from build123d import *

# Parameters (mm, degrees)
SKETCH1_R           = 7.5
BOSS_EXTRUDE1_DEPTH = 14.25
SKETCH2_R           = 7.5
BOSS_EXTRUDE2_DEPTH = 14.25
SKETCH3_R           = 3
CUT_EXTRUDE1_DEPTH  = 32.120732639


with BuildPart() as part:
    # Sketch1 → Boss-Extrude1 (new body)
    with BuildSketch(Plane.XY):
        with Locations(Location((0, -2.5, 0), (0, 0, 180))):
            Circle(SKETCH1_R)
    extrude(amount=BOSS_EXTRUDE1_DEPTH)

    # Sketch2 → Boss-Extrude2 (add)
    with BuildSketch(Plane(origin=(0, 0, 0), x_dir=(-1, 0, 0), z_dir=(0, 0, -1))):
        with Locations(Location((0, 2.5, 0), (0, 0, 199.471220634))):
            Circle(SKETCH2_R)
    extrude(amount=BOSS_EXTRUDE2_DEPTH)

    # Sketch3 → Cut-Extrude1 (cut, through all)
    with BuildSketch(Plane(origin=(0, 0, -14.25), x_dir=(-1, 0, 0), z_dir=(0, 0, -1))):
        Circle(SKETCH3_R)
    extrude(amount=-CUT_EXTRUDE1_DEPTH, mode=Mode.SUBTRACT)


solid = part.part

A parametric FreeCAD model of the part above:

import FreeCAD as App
import Part
import Sketcher
from FreeCAD import Vector
Q = App.Units.Quantity

doc = App.newDocument("Part")
params = doc.addObject("Spreadsheet::Sheet", "Params")
for row, (alias, value) in enumerate([
    ("sketch1_diameter", "15 mm"),
    ("pad1_length", "14.25 mm"),
    ("sketch2_diameter", "15 mm"),
    ("pad2_length", "14.25 mm"),
    ("sketch3_diameter", "6 mm"),
], start=1):
    params.set(f"A{row}", alias)
    params.set(f"B{row}", "=" + value)
    params.setAlias(f"B{row}", alias)

body = doc.addObject("PartDesign::Body", "Body")

# Sketch on XY plane
sketch1 = body.newObject("Sketcher::SketchObject", "Sketch")
sketch1.AttachmentSupport = (doc.getObject("XY_Plane"), [""])
sketch1.MapMode = "FlatFace"
sketch1.addGeometry(Part.Circle(Vector(0, -2, 0), Vector(0, 0, 1), 8), False)
sketch1.addConstraint([
    Sketcher.Constraint("PointOnObject", 0, 3, -2),
    Sketcher.Constraint("Diameter", 0, Q("15 mm")),
    Sketcher.Constraint("DistanceY", 0, 3, -1, 1, Q("2.5 mm")),
])
sketch1.setExpression("Constraints[1]", "Params.sketch1_diameter")
pad1 = body.newObject("PartDesign::Pad", "Pad")
pad1.Profile = sketch1
pad1.setExpression("Length", "Params.pad1_length")

# Sketch on XY plane
sketch2 = body.newObject("Sketcher::SketchObject", "Sketch001")
sketch2.AttachmentSupport = (doc.getObject("XY_Plane"), [""])
sketch2.MapMode = "FlatFace"
sketch2.addGeometry(Part.Circle(Vector(0, 2, 0), Vector(0, 0, 1), 8), False)
sketch2.addConstraint([
    Sketcher.Constraint("PointOnObject", 0, 3, -2),
    Sketcher.Constraint("Diameter", 0, Q("15 mm")),
    Sketcher.Constraint("DistanceY", -1, 1, 0, 3, Q("2.5 mm")),
])
sketch2.setExpression("Constraints[1]", "Params.sketch2_diameter")
pad2 = body.newObject("PartDesign::Pad", "Pad001")
pad2.Profile = sketch2
pad2.setExpression("Length", "Params.pad2_length")
pad2.Reversed = True

# Sketch on XY plane
sketch3 = body.newObject("Sketcher::SketchObject", "Sketch002")
sketch3.AttachmentSupport = (doc.getObject("XY_Plane"), [""])
sketch3.MapMode = "FlatFace"
sketch3.AttachmentOffset = App.Placement(Vector(0, 0, -14.25), App.Rotation())
sketch3.addGeometry(Part.Circle(Vector(0, 0, 0), Vector(0, 0, 1), 3), False)
sketch3.addConstraint([
    Sketcher.Constraint("Coincident", 0, 3, -1, 1),
    Sketcher.Constraint("Diameter", 0, Q("6 mm")),
])
sketch3.setExpression("Constraints[1]", "Params.sketch3_diameter")
pocket1 = body.newObject("PartDesign::Pocket", "Pocket")
pocket1.Profile = sketch3
pocket1.Type = "ThroughAll"
pocket1.Reversed = True

doc.recompute()
